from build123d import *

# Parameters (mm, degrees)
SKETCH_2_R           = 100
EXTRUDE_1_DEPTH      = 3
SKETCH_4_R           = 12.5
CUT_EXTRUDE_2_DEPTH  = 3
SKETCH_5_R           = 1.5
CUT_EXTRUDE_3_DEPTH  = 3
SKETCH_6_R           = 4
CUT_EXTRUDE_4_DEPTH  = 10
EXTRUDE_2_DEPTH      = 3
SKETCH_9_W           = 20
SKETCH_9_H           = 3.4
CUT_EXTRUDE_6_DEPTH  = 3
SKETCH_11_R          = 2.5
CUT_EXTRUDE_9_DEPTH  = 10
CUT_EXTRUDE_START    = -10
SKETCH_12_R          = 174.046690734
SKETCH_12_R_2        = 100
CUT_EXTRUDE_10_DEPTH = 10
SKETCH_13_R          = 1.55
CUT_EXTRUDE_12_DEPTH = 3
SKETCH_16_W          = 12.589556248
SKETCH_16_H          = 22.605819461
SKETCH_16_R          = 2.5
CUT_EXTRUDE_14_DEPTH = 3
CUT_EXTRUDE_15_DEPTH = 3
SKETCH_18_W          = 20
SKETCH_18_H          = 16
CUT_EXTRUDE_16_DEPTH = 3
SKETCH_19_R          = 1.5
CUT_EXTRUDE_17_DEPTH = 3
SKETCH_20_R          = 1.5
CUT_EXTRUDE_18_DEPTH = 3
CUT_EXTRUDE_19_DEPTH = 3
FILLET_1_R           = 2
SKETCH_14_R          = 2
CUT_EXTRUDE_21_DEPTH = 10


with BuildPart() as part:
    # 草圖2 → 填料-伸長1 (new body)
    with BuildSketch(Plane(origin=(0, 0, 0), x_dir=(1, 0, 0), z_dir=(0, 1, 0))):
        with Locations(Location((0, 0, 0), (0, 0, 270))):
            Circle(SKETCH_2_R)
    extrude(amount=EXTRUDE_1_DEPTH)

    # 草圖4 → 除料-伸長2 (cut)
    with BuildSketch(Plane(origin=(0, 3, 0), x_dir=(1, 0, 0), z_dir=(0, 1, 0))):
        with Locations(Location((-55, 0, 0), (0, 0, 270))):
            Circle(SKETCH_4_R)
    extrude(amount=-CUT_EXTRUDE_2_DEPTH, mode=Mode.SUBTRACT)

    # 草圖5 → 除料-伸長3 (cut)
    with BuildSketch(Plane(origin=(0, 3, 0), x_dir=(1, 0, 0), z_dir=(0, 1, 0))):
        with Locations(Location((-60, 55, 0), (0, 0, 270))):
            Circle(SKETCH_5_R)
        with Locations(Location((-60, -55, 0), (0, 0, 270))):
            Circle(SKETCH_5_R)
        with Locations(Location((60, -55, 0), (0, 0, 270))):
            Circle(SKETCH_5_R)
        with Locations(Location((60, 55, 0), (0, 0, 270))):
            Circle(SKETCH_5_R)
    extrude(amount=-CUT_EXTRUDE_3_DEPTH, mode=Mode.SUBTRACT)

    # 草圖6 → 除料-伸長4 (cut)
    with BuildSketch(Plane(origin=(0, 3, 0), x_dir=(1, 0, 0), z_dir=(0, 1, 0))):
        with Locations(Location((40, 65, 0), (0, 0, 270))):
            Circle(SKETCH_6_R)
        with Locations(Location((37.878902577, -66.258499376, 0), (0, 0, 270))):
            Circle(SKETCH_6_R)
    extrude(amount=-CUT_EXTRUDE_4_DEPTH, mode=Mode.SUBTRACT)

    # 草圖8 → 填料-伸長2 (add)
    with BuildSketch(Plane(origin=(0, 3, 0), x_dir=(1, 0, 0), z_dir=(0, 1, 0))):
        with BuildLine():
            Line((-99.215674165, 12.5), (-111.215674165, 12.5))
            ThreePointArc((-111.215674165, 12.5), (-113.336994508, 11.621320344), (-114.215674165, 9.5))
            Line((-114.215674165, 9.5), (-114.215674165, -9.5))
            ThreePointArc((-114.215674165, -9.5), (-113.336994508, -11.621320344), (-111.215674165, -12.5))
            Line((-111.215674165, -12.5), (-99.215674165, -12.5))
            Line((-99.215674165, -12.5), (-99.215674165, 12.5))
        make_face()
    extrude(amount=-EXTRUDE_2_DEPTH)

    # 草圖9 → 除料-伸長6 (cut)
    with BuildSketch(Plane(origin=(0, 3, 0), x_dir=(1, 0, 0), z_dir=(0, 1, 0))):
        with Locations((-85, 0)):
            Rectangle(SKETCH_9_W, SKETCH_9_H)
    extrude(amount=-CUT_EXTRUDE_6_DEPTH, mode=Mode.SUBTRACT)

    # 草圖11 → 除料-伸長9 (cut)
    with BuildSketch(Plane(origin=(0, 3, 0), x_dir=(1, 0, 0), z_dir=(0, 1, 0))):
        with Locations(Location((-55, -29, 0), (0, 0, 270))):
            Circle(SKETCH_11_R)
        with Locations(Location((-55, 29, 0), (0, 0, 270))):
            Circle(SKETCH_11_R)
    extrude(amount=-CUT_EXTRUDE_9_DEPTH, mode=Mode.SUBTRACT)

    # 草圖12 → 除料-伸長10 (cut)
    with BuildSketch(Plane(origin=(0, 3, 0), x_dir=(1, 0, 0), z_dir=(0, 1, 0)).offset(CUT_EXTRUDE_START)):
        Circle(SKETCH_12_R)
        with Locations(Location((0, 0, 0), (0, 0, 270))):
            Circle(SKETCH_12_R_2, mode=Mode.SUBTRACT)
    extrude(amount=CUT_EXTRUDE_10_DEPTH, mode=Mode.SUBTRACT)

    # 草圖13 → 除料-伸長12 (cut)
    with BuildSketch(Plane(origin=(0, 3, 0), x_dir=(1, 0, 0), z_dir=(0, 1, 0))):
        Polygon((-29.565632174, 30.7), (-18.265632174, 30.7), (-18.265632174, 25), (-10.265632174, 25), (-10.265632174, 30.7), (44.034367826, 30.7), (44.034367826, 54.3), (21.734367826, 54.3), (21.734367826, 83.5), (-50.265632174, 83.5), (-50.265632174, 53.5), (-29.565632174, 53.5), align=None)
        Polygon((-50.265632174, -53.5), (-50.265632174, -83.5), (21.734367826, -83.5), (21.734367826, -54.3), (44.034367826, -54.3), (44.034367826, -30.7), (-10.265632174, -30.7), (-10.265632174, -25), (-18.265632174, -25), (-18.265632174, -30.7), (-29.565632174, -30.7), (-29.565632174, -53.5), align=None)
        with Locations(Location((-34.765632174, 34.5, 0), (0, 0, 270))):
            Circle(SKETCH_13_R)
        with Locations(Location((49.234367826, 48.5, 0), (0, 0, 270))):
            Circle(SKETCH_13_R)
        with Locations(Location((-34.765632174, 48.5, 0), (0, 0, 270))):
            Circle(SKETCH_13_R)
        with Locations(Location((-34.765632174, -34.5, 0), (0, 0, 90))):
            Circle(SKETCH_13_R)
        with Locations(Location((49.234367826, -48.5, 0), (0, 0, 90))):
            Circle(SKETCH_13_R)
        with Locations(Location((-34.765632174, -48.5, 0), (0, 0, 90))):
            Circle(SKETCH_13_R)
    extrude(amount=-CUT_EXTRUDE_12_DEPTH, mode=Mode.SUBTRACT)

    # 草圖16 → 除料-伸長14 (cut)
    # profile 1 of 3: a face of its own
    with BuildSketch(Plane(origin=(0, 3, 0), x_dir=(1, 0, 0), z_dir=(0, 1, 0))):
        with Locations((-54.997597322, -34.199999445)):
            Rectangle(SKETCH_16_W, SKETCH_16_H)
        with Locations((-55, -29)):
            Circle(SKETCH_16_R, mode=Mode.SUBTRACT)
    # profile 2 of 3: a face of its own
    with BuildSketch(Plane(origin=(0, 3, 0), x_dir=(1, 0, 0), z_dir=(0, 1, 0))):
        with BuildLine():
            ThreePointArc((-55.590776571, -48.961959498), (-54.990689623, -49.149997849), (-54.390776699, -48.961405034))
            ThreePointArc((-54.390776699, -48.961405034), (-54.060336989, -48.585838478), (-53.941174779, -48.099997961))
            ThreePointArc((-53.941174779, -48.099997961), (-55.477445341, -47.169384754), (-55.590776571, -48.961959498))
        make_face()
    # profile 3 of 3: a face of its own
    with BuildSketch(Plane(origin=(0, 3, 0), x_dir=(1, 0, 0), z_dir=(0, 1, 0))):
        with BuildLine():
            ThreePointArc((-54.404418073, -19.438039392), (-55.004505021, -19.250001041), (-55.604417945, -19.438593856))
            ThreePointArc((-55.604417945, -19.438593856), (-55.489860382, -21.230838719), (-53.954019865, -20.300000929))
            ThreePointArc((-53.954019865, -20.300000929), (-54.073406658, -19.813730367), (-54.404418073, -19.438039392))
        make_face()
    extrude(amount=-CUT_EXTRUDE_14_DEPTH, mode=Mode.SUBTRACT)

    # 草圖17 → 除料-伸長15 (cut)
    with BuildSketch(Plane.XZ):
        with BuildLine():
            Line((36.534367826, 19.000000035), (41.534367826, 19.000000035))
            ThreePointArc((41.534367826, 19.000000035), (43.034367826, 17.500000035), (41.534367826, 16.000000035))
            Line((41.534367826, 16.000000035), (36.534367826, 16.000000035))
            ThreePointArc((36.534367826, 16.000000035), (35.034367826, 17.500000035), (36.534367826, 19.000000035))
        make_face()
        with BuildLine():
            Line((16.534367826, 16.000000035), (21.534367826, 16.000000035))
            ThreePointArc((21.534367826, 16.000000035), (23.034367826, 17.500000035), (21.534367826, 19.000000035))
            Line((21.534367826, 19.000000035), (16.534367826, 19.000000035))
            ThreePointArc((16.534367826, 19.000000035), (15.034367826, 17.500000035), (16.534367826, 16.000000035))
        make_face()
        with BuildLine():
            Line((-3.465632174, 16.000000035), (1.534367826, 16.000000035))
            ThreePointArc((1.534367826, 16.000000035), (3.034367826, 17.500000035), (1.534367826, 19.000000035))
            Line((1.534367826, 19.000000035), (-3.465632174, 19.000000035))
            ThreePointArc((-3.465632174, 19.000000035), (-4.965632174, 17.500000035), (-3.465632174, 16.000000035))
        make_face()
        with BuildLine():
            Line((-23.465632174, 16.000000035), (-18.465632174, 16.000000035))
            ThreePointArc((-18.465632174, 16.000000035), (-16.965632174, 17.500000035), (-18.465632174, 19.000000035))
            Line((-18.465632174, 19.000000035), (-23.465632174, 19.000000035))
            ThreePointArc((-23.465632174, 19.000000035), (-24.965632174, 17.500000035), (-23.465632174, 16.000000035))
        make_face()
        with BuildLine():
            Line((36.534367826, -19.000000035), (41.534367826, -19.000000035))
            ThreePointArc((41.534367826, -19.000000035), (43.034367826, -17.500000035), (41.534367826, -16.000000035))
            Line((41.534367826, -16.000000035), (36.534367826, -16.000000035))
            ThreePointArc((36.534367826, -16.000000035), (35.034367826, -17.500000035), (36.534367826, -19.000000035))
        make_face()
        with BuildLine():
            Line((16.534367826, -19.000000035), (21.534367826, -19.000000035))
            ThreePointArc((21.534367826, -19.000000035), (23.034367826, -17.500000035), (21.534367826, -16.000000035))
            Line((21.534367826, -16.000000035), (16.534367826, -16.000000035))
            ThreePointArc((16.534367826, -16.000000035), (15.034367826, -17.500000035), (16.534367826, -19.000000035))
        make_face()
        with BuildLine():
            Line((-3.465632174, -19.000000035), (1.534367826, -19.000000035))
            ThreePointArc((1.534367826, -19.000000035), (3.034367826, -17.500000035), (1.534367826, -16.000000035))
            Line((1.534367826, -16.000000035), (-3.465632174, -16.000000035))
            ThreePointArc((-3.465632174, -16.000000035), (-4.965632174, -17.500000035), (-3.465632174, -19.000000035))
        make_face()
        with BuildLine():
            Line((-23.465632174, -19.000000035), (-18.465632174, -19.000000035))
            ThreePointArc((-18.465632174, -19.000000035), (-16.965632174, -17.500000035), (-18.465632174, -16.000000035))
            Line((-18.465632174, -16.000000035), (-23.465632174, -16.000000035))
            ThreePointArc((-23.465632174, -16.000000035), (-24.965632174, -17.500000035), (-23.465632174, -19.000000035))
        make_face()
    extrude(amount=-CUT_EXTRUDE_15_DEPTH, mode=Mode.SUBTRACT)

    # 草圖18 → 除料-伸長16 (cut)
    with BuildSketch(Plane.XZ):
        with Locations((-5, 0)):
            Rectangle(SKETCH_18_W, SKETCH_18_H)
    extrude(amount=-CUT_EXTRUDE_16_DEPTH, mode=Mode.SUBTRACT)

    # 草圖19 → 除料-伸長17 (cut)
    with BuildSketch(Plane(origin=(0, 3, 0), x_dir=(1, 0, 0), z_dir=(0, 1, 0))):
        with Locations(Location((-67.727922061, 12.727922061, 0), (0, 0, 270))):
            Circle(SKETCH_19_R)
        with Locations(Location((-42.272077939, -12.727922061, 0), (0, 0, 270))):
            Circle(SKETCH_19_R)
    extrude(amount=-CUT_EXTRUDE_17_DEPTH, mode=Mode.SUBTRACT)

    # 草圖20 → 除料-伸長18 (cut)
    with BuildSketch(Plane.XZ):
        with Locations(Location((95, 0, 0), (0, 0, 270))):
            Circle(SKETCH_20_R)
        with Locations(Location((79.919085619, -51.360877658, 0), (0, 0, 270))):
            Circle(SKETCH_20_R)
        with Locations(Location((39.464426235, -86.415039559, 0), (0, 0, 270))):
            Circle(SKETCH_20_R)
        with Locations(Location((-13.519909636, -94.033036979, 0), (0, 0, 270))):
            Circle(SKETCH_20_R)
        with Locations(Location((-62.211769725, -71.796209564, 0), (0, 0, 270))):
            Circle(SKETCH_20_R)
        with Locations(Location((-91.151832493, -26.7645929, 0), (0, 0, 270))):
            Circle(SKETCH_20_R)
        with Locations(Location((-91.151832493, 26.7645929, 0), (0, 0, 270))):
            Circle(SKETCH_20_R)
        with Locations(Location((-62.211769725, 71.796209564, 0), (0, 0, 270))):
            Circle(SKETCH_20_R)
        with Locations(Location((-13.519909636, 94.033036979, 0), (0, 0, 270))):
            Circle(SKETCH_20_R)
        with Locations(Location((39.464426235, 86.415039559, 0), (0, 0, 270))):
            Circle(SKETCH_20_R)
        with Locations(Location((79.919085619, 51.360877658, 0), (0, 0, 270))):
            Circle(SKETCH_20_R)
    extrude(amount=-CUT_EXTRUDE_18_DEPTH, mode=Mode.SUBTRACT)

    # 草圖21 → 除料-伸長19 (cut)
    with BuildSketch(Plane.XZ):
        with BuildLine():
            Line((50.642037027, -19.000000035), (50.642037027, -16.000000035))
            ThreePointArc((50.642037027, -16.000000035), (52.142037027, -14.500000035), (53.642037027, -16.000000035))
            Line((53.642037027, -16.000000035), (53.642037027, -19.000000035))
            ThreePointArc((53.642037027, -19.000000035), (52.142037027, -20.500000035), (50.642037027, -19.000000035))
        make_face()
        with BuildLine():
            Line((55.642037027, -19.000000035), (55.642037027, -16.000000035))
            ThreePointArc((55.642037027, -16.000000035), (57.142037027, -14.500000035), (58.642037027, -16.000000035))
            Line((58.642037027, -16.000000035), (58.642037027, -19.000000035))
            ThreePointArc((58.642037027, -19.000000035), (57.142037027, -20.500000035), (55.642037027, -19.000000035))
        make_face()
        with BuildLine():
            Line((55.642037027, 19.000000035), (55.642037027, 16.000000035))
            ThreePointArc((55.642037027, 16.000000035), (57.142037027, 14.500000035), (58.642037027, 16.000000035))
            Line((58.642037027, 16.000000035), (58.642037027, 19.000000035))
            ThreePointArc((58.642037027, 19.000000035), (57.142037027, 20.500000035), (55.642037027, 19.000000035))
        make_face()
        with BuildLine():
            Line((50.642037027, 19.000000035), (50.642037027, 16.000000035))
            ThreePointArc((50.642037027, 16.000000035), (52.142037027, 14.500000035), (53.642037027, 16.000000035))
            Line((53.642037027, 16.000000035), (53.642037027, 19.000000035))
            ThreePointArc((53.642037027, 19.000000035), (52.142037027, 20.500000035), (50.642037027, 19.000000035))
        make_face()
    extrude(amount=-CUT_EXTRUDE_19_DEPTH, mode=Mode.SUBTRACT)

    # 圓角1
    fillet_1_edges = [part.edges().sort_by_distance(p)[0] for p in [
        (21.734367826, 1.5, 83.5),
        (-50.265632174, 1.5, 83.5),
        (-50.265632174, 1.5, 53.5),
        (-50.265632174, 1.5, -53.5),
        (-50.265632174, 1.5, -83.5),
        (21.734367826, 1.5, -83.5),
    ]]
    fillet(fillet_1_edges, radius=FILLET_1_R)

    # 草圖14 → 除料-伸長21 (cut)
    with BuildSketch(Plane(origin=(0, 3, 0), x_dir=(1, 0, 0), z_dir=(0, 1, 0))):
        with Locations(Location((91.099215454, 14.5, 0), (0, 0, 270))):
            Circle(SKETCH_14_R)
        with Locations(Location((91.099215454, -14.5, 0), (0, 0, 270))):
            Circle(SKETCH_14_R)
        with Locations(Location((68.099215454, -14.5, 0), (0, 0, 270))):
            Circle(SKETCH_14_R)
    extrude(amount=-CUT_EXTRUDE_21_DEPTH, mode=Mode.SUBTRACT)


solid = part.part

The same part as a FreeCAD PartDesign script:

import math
import FreeCAD as App
import Part
import Sketcher


def edges_at(feature, points):
    """Names of the edges that pass closest to the given points."""
    edges = feature.Shape.Edges
    near = lambda p: min(range(len(edges)), key=lambda i: edges[i].distToShape(Part.Vertex(*p))[0])
    return sorted({f"Edge{near(p) + 1}" for p in points})


def add_polygon(sketch, points):
    """Adds a closed chain of lines whose ends are joined by coincident constraints."""
    first, n = sketch.GeometryCount, len(points)
    for a, b in zip(points, points[1:] + points[:1]):
        sketch.addGeometry(Part.LineSegment(App.Vector(*a, 0), App.Vector(*b, 0)), False)
    for i in range(n):
        sketch.addConstraint(Sketcher.Constraint("Coincident", first + i, 2, first + (i + 1) % n, 1))

doc = App.newDocument("Part")
params = doc.addObject("Spreadsheet::Sheet", "Params")
for row, (alias, value) in enumerate([
    ("sketch1_diameter", "200 mm"),
    ("pad1_length", "3 mm"),
    ("sketch2_diameter", "25 mm"),
    ("pocket1_length", "3 mm"),
    ("sketch3_diameter", "3 mm"),
    ("pocket2_length", "3 mm"),
    ("sketch4_diameter", "8 mm"),
    ("pocket3_length", "10 mm"),
    ("sketch5_radius", "3 mm"),
    ("sketch5_width", "12 mm"),
    ("sketch5_height", "19 mm"),
    ("pad2_length", "3 mm"),
    ("sketch6_width", "20 mm"),
    ("sketch6_height", "3.4 mm"),
    ("pocket4_length", "3 mm"),
    ("sketch7_diameter", "5 mm"),
    ("pocket5_length", "10 mm"),
    ("sketch8_diameter", "200 mm"),
    ("pocket6_length", "10 mm"),
    ("sketch9_diameter", "3.1 mm"),
    ("sketch9_width", "8 mm"),
    ("sketch9_width2", "72 mm"),
    ("sketch9_height", "30 mm"),
    ("sketch9_width3", "11.3 mm"),
    ("pocket7_length", "3 mm"),
    ("sketch10_diameter", "5 mm"),
    ("sketch10_radius", "1.05 mm"),
    ("pocket8_length", "3 mm"),
    ("sketch11_radius", "1.5 mm"),
    ("sketch11_width", "5 mm"),
    ("pocket9_length", "3 mm"),
    ("sketch12_width", "20 mm"),
    ("sketch12_height", "16 mm"),
    ("pocket10_length", "3 mm"),
    ("sketch13_diameter", "3 mm"),
    ("pocket11_length", "3 mm"),
    ("sketch14_diameter", "3 mm"),
    ("pocket12_length", "3 mm"),
    ("sketch15_radius", "1.5 mm"),
    ("sketch15_height", "3 mm"),
    ("pocket13_length", "3 mm"),
    ("fillet_radius", "2 mm"),
    ("sketch16_diameter", "4 mm"),
    ("pocket14_length", "10 mm"),
], start=1):
    params.set(f"A{row}", alias)
    params.set(f"B{row}", "=" + value)
    params.setAlias(f"B{row}", alias)

body = doc.addObject("PartDesign::Body", "Body")

# Sketch on XZ plane
sketch1 = doc.addObject("Sketcher::SketchObject", "Sketch")
body.addObject(sketch1)
sketch1.AttachmentSupport = (doc.XZ_Plane, [""])
sketch1.MapMode = "FlatFace"
sketch1.addGeometry(Part.Circle(App.Vector(0, 0, 0), App.Vector(0, 0, 1), 100), False)
sketch1.addConstraint([
    Sketcher.Constraint("Coincident", 0, 3, -1, 1),
    Sketcher.Constraint("Diameter", 0, 200.0),
])
sketch1.setExpression("Constraints[1]", "Params.sketch1_diameter")
pad1 = doc.addObject("PartDesign::Pad", "Pad")
body.addObject(pad1)
pad1.Profile = sketch1
pad1.setExpression("Length", "Params.pad1_length")
pad1.Reversed = True

# Sketch on XZ plane
sketch2 = doc.addObject("Sketcher::SketchObject", "Sketch001")
body.addObject(sketch2)
sketch2.AttachmentSupport = (doc.XZ_Plane, [""])
sketch2.MapMode = "FlatFace"
sketch2.AttachmentOffset = App.Placement(App.Vector(0, 0, -3), App.Rotation())
sketch2.addGeometry(Part.Circle(App.Vector(-55, 0, 0), App.Vector(0, 0, 1), 12), False)
sketch2.addConstraint([
    Sketcher.Constraint("PointOnObject", 0, 3, -1),
    Sketcher.Constraint("Diameter", 0, 25.0),
    Sketcher.Constraint("DistanceX", 0, 3, -1, 1, 55.0),
])
sketch2.setExpression("Constraints[1]", "Params.sketch2_diameter")
pocket1 = doc.addObject("PartDesign::Pocket", "Pocket")
body.addObject(pocket1)
pocket1.Profile = sketch2
pocket1.setExpression("Length", "Params.pocket1_length")
pocket1.Reversed = True

# Sketch on XZ plane
sketch3 = doc.addObject("Sketcher::SketchObject", "Sketch002")
body.addObject(sketch3)
sketch3.AttachmentSupport = (doc.XZ_Plane, [""])
sketch3.MapMode = "FlatFace"
sketch3.AttachmentOffset = App.Placement(App.Vector(0, 0, -3), App.Rotation())
sketch3.addGeometry([
    Part.Circle(App.Vector(-60, -55, 0), App.Vector(0, 0, 1), 1.5),
    Part.Circle(App.Vector(-60, 55, 0), App.Vector(0, 0, 1), 1.5),
    Part.Circle(App.Vector(60, 55, 0), App.Vector(0, 0, 1), 1.5),
    Part.Circle(App.Vector(60, -55, 0), App.Vector(0, 0, 1), 1.5),
], False)
sketch3.addConstraint([
    Sketcher.Constraint("Equal", 0, 1),
    Sketcher.Constraint("Equal", 1, 2),
    Sketcher.Constraint("Equal", 2, 3),
    Sketcher.Constraint("Symmetric", 0, 3, 2, 3, -1, 1),
    Sketcher.Constraint("Symmetric", 1, 3, 3, 3, -1, 1),
    Sketcher.Constraint("Symmetric", 1, 3, 2, 3, -2),
    Sketcher.Constraint("Diameter", 0, 3.0),
    Sketcher.Constraint("DistanceX", 0, 3, -1, 1, 60.0),
    Sketcher.Constraint("DistanceY", 0, 3, -1, 1, 55.0),
])
sketch3.setExpression("Constraints[6]", "Params.sketch3_diameter")
pocket2 = doc.addObject("PartDesign::Pocket", "Pocket001")
body.addObject(pocket2)
pocket2.Profile = sketch3
pocket2.setExpression("Length", "Params.pocket2_length")
pocket2.Reversed = True

# Sketch on XZ plane
sketch4 = doc.addObject("Sketcher::SketchObject", "Sketch003")
body.addObject(sketch4)
sketch4.AttachmentSupport = (doc.XZ_Plane, [""])
sketch4.MapMode = "FlatFace"
sketch4.AttachmentOffset = App.Placement(App.Vector(0, 0, -3), App.Rotation())
sketch4.addGeometry([
    Part.Circle(App.Vector(40, -65, 0), App.Vector(0, 0, 1), 4),
    Part.Circle(App.Vector(37.9, 66.3, 0), App.Vector(0, 0, 1), 4),
], False)
sketch4.addConstraint([
    Sketcher.Constraint("Equal", 0, 1),
    Sketcher.Constraint("Diameter", 0, 8.0),
    Sketcher.Constraint("DistanceX", -1, 1, 0, 3, 40.0),
    Sketcher.Constraint("DistanceY", 0, 3, -1, 1, 65.0),
    Sketcher.Constraint("DistanceY", -1, 1, 1, 3, 66.258499),
    Sketcher.Constraint("DistanceX", -1, 1, 1, 3, 37.878903),
])
sketch4.setExpression("Constraints[1]", "Params.sketch4_diameter")
pocket3 = doc.addObject("PartDesign::Pocket", "Pocket002")
body.addObject(pocket3)
pocket3.Profile = sketch4
pocket3.setExpression("Length", "Params.pocket3_length")
pocket3.Reversed = True

# Sketch on XZ plane
sketch5 = doc.addObject("Sketcher::SketchObject", "Sketch004")
body.addObject(sketch5)
sketch5.AttachmentSupport = (doc.XZ_Plane, [""])
sketch5.MapMode = "FlatFace"
sketch5.AttachmentOffset = App.Placement(App.Vector(0, 0, -3), App.Rotation())
sketch5.addGeometry([
    Part.LineSegment(App.Vector(-99.2, -12.5, 0), App.Vector(-111.2, -12.5, 0)),  # 0
    Part.ArcOfCircle(Part.Circle(App.Vector(-111.2, -9.5, 0), App.Vector(0, 0, 1), 3), math.radians(180), math.radians(270)),  # 1
    Part.LineSegment(App.Vector(-114.2, -9.5, 0), App.Vector(-114.2, 9.5, 0)),  # 2
    Part.ArcOfCircle(Part.Circle(App.Vector(-111.2, 9.5, 0), App.Vector(0, 0, 1), 3), math.radians(90), math.radians(180)),  # 3
    Part.LineSegment(App.Vector(-111.2, 12.5, 0), App.Vector(-99.2, 12.5, 0)),  # 4
    Part.LineSegment(App.Vector(-99.2, 12.5, 0), App.Vector(-99.2, -12.5, 0)),  # 5
], False)
sketch5.addConstraint([
    Sketcher.Constraint("Tangent", 0, 2, 1, 2),
    Sketcher.Constraint("Tangent", 1, 1, 2, 1),
    Sketcher.Constraint("Tangent", 2, 2, 3, 2),
    Sketcher.Constraint("Tangent", 3, 1, 4, 1),
    Sketcher.Constraint("Coincident", 4, 2, 5, 1),
    Sketcher.Constraint("Coincident", 5, 2, 0, 1),
    Sketcher.Constraint("Horizontal", 0),
    Sketcher.Constraint("Vertical", 2),
    Sketcher.Constraint("Horizontal", 4),
    Sketcher.Constraint("Vertical", 5),
    Sketcher.Constraint("Equal", 1, 3),
    Sketcher.Constraint("Radius", 1, 3.0),
    Sketcher.Constraint("DistanceX", 0, 2, 0, 1, 12.0),
    Sketcher.Constraint("DistanceY", 2, 1, 2, 2, 19.0),
    Sketcher.Constraint("DistanceY", 1, 3, -1, 1, 9.5),
    Sketcher.Constraint("DistanceX", 1, 3, -1, 1, 111.215674),
])
sketch5.setExpression("Constraints[11]", "Params.sketch5_radius")
sketch5.setExpression("Constraints[12]", "Params.sketch5_width")
sketch5.setExpression("Constraints[13]", "Params.sketch5_height")
pad2 = doc.addObject("PartDesign::Pad", "Pad001")
body.addObject(pad2)
pad2.Profile = sketch5
pad2.setExpression("Length", "Params.pad2_length")

# Sketch on XZ plane
sketch6 = doc.addObject("Sketcher::SketchObject", "Sketch005")
body.addObject(sketch6)
sketch6.AttachmentSupport = (doc.XZ_Plane, [""])
sketch6.MapMode = "FlatFace"
sketch6.AttachmentOffset = App.Placement(App.Vector(0, 0, -3), App.Rotation())
add_polygon(sketch6, [(-95, -1.7), (-95, 1.7), (-75, 1.7), (-75, -1.7)])  # lines 0-3
sketch6.addConstraint([
    Sketcher.Constraint("Vertical", 0),
    Sketcher.Constraint("Horizontal", 1),
    Sketcher.Constraint("Vertical", 2),
    Sketcher.Constraint("Horizontal", 3),
    Sketcher.Constraint("DistanceX", 1, 1, 1, 2, 20.0),
    Sketcher.Constraint("DistanceY", 0, 1, 0, 2, 3.4),
    Sketcher.Constraint("DistanceX", 0, 2, -1, 1, 95.0),
    Sketcher.Constraint("DistanceY", -1, 1, 0, 2, 1.7),
])
sketch6.setExpression("Constraints[8]", "Params.sketch6_width")
sketch6.setExpression("Constraints[9]", "Params.sketch6_height")
pocket4 = doc.addObject("PartDesign::Pocket", "Pocket003")
body.addObject(pocket4)
pocket4.Profile = sketch6
pocket4.setExpression("Length", "Params.pocket4_length")
pocket4.Reversed = True

# Sketch on XZ plane
sketch7 = doc.addObject("Sketcher::SketchObject", "Sketch006")
body.addObject(sketch7)
sketch7.AttachmentSupport = (doc.XZ_Plane, [""])
sketch7.MapMode = "FlatFace"
sketch7.AttachmentOffset = App.Placement(App.Vector(0, 0, -3), App.Rotation())
sketch7.addGeometry([
    Part.Circle(App.Vector(-55, 29, 0), App.Vector(0, 0, 1), 2.5),
    Part.Circle(App.Vector(-55, -29, 0), App.Vector(0, 0, 1), 2.5),
], False)
sketch7.addConstraint([
    Sketcher.Constraint("Equal", 0, 1),
    Sketcher.Constraint("Symmetric", 0, 3, 1, 3, -1),
    Sketcher.Constraint("Diameter", 0, 5.0),
    Sketcher.Constraint("DistanceX", 0, 3, -1, 1, 55.0),
    Sketcher.Constraint("DistanceY", -1, 1, 0, 3, 29.0),
])
sketch7.setExpression("Constraints[2]", "Params.sketch7_diameter")
pocket5 = doc.addObject("PartDesign::Pocket", "Pocket004")
body.addObject(pocket5)
pocket5.Profile = sketch7
pocket5.setExpression("Length", "Params.pocket5_length")
pocket5.Reversed = True

# Sketch on XZ plane
sketch8 = doc.addObject("Sketcher::SketchObject", "Sketch007")
body.addObject(sketch8)
sketch8.AttachmentSupport = (doc.XZ_Plane, [""])
sketch8.MapMode = "FlatFace"
sketch8.AttachmentOffset = App.Placement(App.Vector(0, 0, 7), App.Rotation())
sketch8.addGeometry([
    Part.Circle(App.Vector(0, 0, 0), App.Vector(0, 0, 1), 174),
    Part.Circle(App.Vector(0, 0, 0), App.Vector(0, 0, 1), 100),
], False)
sketch8.addConstraint([
    Sketcher.Constraint("Coincident", 0, 3, -1, 1),
    Sketcher.Constraint("Coincident", 1, 3, -1, 1),
    Sketcher.Constraint("Diameter", 1, 200.0),
    Sketcher.Constraint("Diameter", 0, 348.093381),
])
sketch8.setExpression("Constraints[2]", "Params.sketch8_diameter")
pocket6 = doc.addObject("PartDesign::Pocket", "Pocket005")
body.addObject(pocket6)
pocket6.Profile = sketch8
pocket6.setExpression("Length", "Params.pocket6_length")

# Sketch on XZ plane
sketch9 = doc.addObject("Sketcher::SketchObject", "Sketch008")
body.addObject(sketch9)
sketch9.AttachmentSupport = (doc.XZ_Plane, [""])
sketch9.MapMode = "FlatFace"
sketch9.AttachmentOffset = App.Placement(App.Vector(0, 0, -3), App.Rotation())
add_polygon(sketch9, [(-29.6, -30.7), (-18.3, -30.7), (-18.3, -25), (-10.3, -25), (-10.3, -30.7), (44, -30.7), (44, -54.3), (21.7, -54.3), (21.7, -83.5), (-50.3, -83.5), (-50.3, -53.5), (-29.6, -53.5)])  # lines 0-11
add_polygon(sketch9, [(-50.3, 53.5), (-50.3, 83.5), (21.7, 83.5), (21.7, 54.3), (44, 54.3), (44, 30.7), (-10.3, 30.7), (-10.3, 25), (-18.3, 25), (-18.3, 30.7), (-29.6, 30.7), (-29.6, 53.5)])  # lines 12-23
sketch9.addGeometry(Part.Circle(App.Vector(-34.8, -34.5, 0), App.Vector(0, 0, 1), 1.6), False)  # 24
sketch9.addGeometry(Part.Circle(App.Vector(49.2, -48.5, 0), App.Vector(0, 0, 1), 1.6), False)  # 25
sketch9.addGeometry(Part.Circle(App.Vector(-34.8, -48.5, 0), App.Vector(0, 0, 1), 1.6), False)  # 26
sketch9.addGeometry(Part.Circle(App.Vector(-34.8, 34.5, 0), App.Vector(0, 0, 1), 1.6), False)  # 27
sketch9.addGeometry(Part.Circle(App.Vector(49.2, 48.5, 0), App.Vector(0, 0, 1), 1.6), False)  # 28
sketch9.addGeometry(Part.Circle(App.Vector(-34.8, 48.5, 0), App.Vector(0, 0, 1), 1.6), False)  # 29
sketch9.addConstraint([
    Sketcher.Constraint("Horizontal", 0),
    Sketcher.Constraint("Vertical", 1),
    Sketcher.Constraint("Horizontal", 2),
    Sketcher.Constraint("Vertical", 3),
    Sketcher.Constraint("Horizontal", 4),
    Sketcher.Constraint("Vertical", 5),
    Sketcher.Constraint("Horizontal", 6),
    Sketcher.Constraint("Vertical", 7),
    Sketcher.Constraint("Horizontal", 8),
    Sketcher.Constraint("Vertical", 9),
    Sketcher.Constraint("Horizontal", 10),
    Sketcher.Constraint("Vertical", 11),
    Sketcher.Constraint("Vertical", 12),
    Sketcher.Constraint("Horizontal", 13),
    Sketcher.Constraint("Vertical", 14),
    Sketcher.Constraint("Horizontal", 15),
    Sketcher.Constraint("Vertical", 16),
    Sketcher.Constraint("Horizontal", 17),
    Sketcher.Constraint("Vertical", 18),
    Sketcher.Constraint("Horizontal", 19),
    Sketcher.Constraint("Vertical", 20),
    Sketcher.Constraint("Horizontal", 21),
    Sketcher.Constraint("Vertical", 22),
    Sketcher.Constraint("Horizontal", 23),
    Sketcher.Constraint("Equal", 24, 25),
    Sketcher.Constraint("Equal", 25, 26),
    Sketcher.Constraint("Equal", 26, 27),
    Sketcher.Constraint("Equal", 27, 28),
    Sketcher.Constraint("Equal", 28, 29),
    Sketcher.Constraint("Symmetric", 24, 3, 27, 3, -1),
    Sketcher.Constraint("Symmetric", 25, 3, 28, 3, -1),
    Sketcher.Constraint("Symmetric", 26, 3, 29, 3, -1),
    Sketcher.Constraint("Symmetric", 8, 2, 12, 2, -1),
    Sketcher.Constraint("Symmetric", 6, 2, 14, 2, -1),
    Sketcher.Constraint("Symmetric", 4, 2, 16, 2, -1),
    Sketcher.Constraint("Symmetric", 2, 2, 18, 2, -1),
    Sketcher.Constraint("Symmetric", 0, 2, 20, 2, -1),
    Sketcher.Constraint("Symmetric", 10, 2, 22, 2, -1),
    Sketcher.Constraint("Horizontal", 25, 3, 26, 3),
    Sketcher.Constraint("Horizontal", 0, 2, 3, 2),
    Sketcher.Constraint("Vertical", 24, 3, 26, 3),
    Sketcher.Constraint("Diameter", 24, 3.1),
    Sketcher.Constraint("DistanceX", 2, 1, 2, 2, 8.0),
    Sketcher.Constraint("DistanceX", 8, 2, 8, 1, 72.0),
    Sketcher.Constraint("DistanceY", 9, 1, 9, 2, 30.0),
    Sketcher.Constraint("DistanceX", 0, 1, 0, 2, 11.3),
    Sketcher.Constraint("DistanceX", 4, 1, 4, 2, 54.3),
    Sketcher.Constraint("DistanceX", 6, 2, 6, 1, 22.3),
    Sketcher.Constraint("DistanceY", 1, 1, 1, 2, 5.7),
    Sketcher.Constraint("DistanceY", 5, 2, 5, 1, 23.6),
    Sketcher.Constraint("DistanceY", 7, 2, 7, 1, 29.2),
    Sketcher.Constraint("DistanceY", 1, 2, -1, 1, 25.0),
    Sketcher.Constraint("DistanceX", 24, 3, 25, 3, 84.0),
    Sketcher.Constraint("DistanceY", 25, 3, 24, 3, 14.0),
    Sketcher.Constraint("DistanceY", 24, 3, 27, 3, 69.0),
    Sketcher.Constraint("DistanceX", 24, 3, 0, 2, 16.5),
    Sketcher.Constraint("DistanceX", 24, 3, -1, 1, 34.765632),
])
sketch9.setExpression("Constraints[65]", "Params.sketch9_diameter")
sketch9.setExpression("Constraints[66]", "Params.sketch9_width")
sketch9.setExpression("Constraints[67]", "Params.sketch9_width2")
sketch9.setExpression("Constraints[68]", "Params.sketch9_height")
sketch9.setExpression("Constraints[69]", "Params.sketch9_width3")
pocket7 = doc.addObject("PartDesign::Pocket", "Pocket006")
body.addObject(pocket7)
pocket7.Profile = sketch9
pocket7.setExpression("Length", "Params.pocket7_length")
pocket7.Reversed = True

# Sketch on XZ plane
sketch10 = doc.addObject("Sketcher::SketchObject", "Sketch009")
body.addObject(sketch10)
sketch10.AttachmentSupport = (doc.XZ_Plane, [""])
sketch10.MapMode = "FlatFace"
sketch10.AttachmentOffset = App.Placement(App.Vector(0, 0, -3), App.Rotation())
add_polygon(sketch10, [(-61.3, 22.9), (-61.3, 45.5), (-48.7, 45.5), (-48.7, 22.9)])  # lines 0-3
sketch10.addGeometry(Part.Circle(App.Vector(-55, 29, 0), App.Vector(0, 0, 1), 2.5), False)  # 4
sketch10.addGeometry(Part.ArcOfCircle(Part.Circle(App.Vector(-55, 48.1, 0), App.Vector(0, 0, 1), 1.1), math.radians(55), math.radians(125)), False)  # 5
sketch10.addGeometry(Part.ArcOfCircle(Part.Circle(App.Vector(-55, 48.1, 0), App.Vector(0, 0, 1), 1.1), math.radians(0), math.radians(55)), False)  # 6
sketch10.addGeometry(Part.ArcOfCircle(Part.Circle(App.Vector(-55, 48.1, 0), App.Vector(0, 0, 1), 1.1), math.radians(125), math.radians(360)), False)  # 7
sketch10.addGeometry(Part.ArcOfCircle(Part.Circle(App.Vector(-55, 20.3, 0), App.Vector(0, 0, 1), 1.1), math.radians(-125), math.radians(-55)), False)  # 8
sketch10.addGeometry(Part.ArcOfCircle(Part.Circle(App.Vector(-55, 20.3, 0), App.Vector(0, 0, 1), 1.1), math.radians(0), math.radians(235)), False)  # 9
sketch10.addGeometry(Part.ArcOfCircle(Part.Circle(App.Vector(-55, 20.3, 0), App.Vector(0, 0, 1), 1), math.radians(-55), math.radians(0)), False)  # 10
sketch10.addConstraint([
    Sketcher.Constraint("Tangent", 5, 1, 6, 2),
    Sketcher.Constraint("Tangent", 6, 1, 7, 2),
    Sketcher.Constraint("Tangent", 7, 1, 5, 2),
    Sketcher.Constraint("Tangent", 8, 1, 9, 2),
    Sketcher.Constraint("Tangent", 9, 1, 10, 2),
    Sketcher.Constraint("Tangent", 10, 1, 8, 2),
    Sketcher.Constraint("Vertical", 0),
    Sketcher.Constraint("Horizontal", 1),
    Sketcher.Constraint("Vertical", 2),
    Sketcher.Constraint("Horizontal", 3),
    Sketcher.Constraint("Equal", 7, 8),
    Sketcher.Constraint("Horizontal", 7, 3, 6, 1),
    Sketcher.Constraint("Horizontal", 10, 3, 9, 1),
    Sketcher.Constraint("Diameter", 4, 5.0),
    Sketcher.Constraint("Radius", 5, 1.05),
    Sketcher.Constraint("DistanceX", 4, 3, -1, 1, 55.0),
    Sketcher.Constraint("DistanceY", -1, 1, 4, 3, 29.0),
    Sketcher.Constraint("DistanceY", -1, 1, 8, 3, 20.300001),
    Sketcher.Constraint("DistanceX", 7, 1, 5, 1, 1.2),
    Sketcher.Constraint("DistanceX", 8, 1, 10, 1, 1.2),
    Sketcher.Constraint("DistanceY", 0, 1, 0, 2, 22.605819),
    Sketcher.Constraint("DistanceX", 0, 2, 6, 3, 6.301201),
    Sketcher.Constraint("DistanceX", 10, 3, 2, 2, 6.301201),
    Sketcher.Constraint("DistanceX", 5, 3, 5, 1, 0.600398),
    Sketcher.Constraint("DistanceX", 8, 1, 10, 3, 0.600398),
    Sketcher.Constraint("DistanceX", 1, 1, 1, 2, 12.589556),
    Sketcher.Constraint("DistanceX", 8, 3, -1, 1, 55.00402),
    Sketcher.Constraint("DistanceY", -1, 1, 0, 2, 45.502909),
    Sketcher.Constraint("DistanceY", -1, 1, 7, 1, 48.961959),
])
sketch10.setExpression("Constraints[17]", "Params.sketch10_diameter")
sketch10.setExpression("Constraints[18]", "Params.sketch10_radius")
pocket8 = doc.addObject("PartDesign::Pocket", "Pocket007")
body.addObject(pocket8)
pocket8.Profile = sketch10
pocket8.setExpression("Length", "Params.pocket8_length")
pocket8.Reversed = True

# Sketch on XZ plane
sketch11 = doc.addObject("Sketcher::SketchObject", "Sketch010")
body.addObject(sketch11)
sketch11.AttachmentSupport = (doc.XZ_Plane, [""])
sketch11.MapMode = "FlatFace"
sketch11.addGeometry([
    Part.LineSegment(App.Vector(41.5, 19, 0), App.Vector(36.5, 19, 0)),  # 0
    Part.ArcOfCircle(Part.Circle(App.Vector(36.5, 17.5, 0), App.Vector(0, 0, 1), 1.5), math.radians(90), math.radians(270)),  # 1
    Part.LineSegment(App.Vector(36.5, 16, 0), App.Vector(41.5, 16, 0)),  # 2
    Part.ArcOfCircle(Part.Circle(App.Vector(41.5, 17.5, 0), App.Vector(0, 0, 1), 1.5), math.radians(-90), math.radians(90)),  # 3
    Part.LineSegment(App.Vector(16.5, 16, 0), App.Vector(21.5, 16, 0)),  # 4
    Part.ArcOfCircle(Part.Circle(App.Vector(21.5, 17.5, 0), App.Vector(0, 0, 1), 1.5), math.radians(-90), math.radians(90)),  # 5
    Part.LineSegment(App.Vector(21.5, 19, 0), App.Vector(16.5, 19, 0)),  # 6
    Part.ArcOfCircle(Part.Circle(App.Vector(16.5, 17.5, 0), App.Vector(0, 0, 1), 1.5), math.radians(90), math.radians(270)),  # 7
    Part.LineSegment(App.Vector(-3.5, 16, 0), App.Vector(1.5, 16, 0)),  # 8
    Part.ArcOfCircle(Part.Circle(App.Vector(1.5, 17.5, 0), App.Vector(0, 0, 1), 1.5), math.radians(-90), math.radians(90)),  # 9
    Part.LineSegment(App.Vector(1.5, 19, 0), App.Vector(-3.5, 19, 0)),  # 10
    Part.ArcOfCircle(Part.Circle(App.Vector(-3.5, 17.5, 0), App.Vector(0, 0, 1), 1.5), math.radians(90), math.radians(270)),  # 11
    Part.LineSegment(App.Vector(-23.5, 16, 0), App.Vector(-18.5, 16, 0)),  # 12
    Part.ArcOfCircle(Part.Circle(App.Vector(-18.5, 17.5, 0), App.Vector(0, 0, 1), 1.5), math.radians(-90), math.radians(90)),  # 13
    Part.LineSegment(App.Vector(-18.5, 19, 0), App.Vector(-23.5, 19, 0)),  # 14
    Part.ArcOfCircle(Part.Circle(App.Vector(-23.5, 17.5, 0), App.Vector(0, 0, 1), 1.5), math.radians(90), math.radians(270)),  # 15
    Part.LineSegment(App.Vector(36.5, -19, 0), App.Vector(41.5, -19, 0)),  # 16
    Part.ArcOfCircle(Part.Circle(App.Vector(41.5, -17.5, 0), App.Vector(0, 0, 1), 1.5), math.radians(-90), math.radians(90)),  # 17
    Part.LineSegment(App.Vector(41.5, -16, 0), App.Vector(36.5, -16, 0)),  # 18
    Part.ArcOfCircle(Part.Circle(App.Vector(36.5, -17.5, 0), App.Vector(0, 0, 1), 1.5), math.radians(90), math.radians(270)),  # 19
    Part.LineSegment(App.Vector(16.5, -19, 0), App.Vector(21.5, -19, 0)),  # 20
    Part.ArcOfCircle(Part.Circle(App.Vector(21.5, -17.5, 0), App.Vector(0, 0, 1), 1.5), math.radians(-90), math.radians(90)),  # 21
    Part.LineSegment(App.Vector(21.5, -16, 0), App.Vector(16.5, -16, 0)),  # 22
    Part.ArcOfCircle(Part.Circle(App.Vector(16.5, -17.5, 0), App.Vector(0, 0, 1), 1.5), math.radians(90), math.radians(270)),  # 23
    Part.LineSegment(App.Vector(-3.5, -19, 0), App.Vector(1.5, -19, 0)),  # 24
    Part.ArcOfCircle(Part.Circle(App.Vector(1.5, -17.5, 0), App.Vector(0, 0, 1), 1.5), math.radians(-90), math.radians(90)),  # 25
    Part.LineSegment(App.Vector(1.5, -16, 0), App.Vector(-3.5, -16, 0)),  # 26
    Part.ArcOfCircle(Part.Circle(App.Vector(-3.5, -17.5, 0), App.Vector(0, 0, 1), 1.5), math.radians(90), math.radians(270)),  # 27
    Part.LineSegment(App.Vector(-23.5, -19, 0), App.Vector(-18.5, -19, 0)),  # 28
    Part.ArcOfCircle(Part.Circle(App.Vector(-18.5, -17.5, 0), App.Vector(0, 0, 1), 1.5), math.radians(-90), math.radians(90)),  # 29
    Part.LineSegment(App.Vector(-18.5, -16, 0), App.Vector(-23.5, -16, 0)),  # 30
    Part.ArcOfCircle(Part.Circle(App.Vector(-23.5, -17.5, 0), App.Vector(0, 0, 1), 1.5), math.radians(90), math.radians(270)),  # 31
], False)
sketch11.addConstraint([
    Sketcher.Constraint("Tangent", 0, 2, 1, 1),
    Sketcher.Constraint("Tangent", 1, 2, 2, 1),
    Sketcher.Constraint("Tangent", 2, 2, 3, 1),
    Sketcher.Constraint("Tangent", 3, 2, 0, 1),
    Sketcher.Constraint("Tangent", 4, 2, 5, 1),
    Sketcher.Constraint("Tangent", 5, 2, 6, 1),
    Sketcher.Constraint("Tangent", 6, 2, 7, 1),
    Sketcher.Constraint("Tangent", 7, 2, 4, 1),
    Sketcher.Constraint("Tangent", 8, 2, 9, 1),
    Sketcher.Constraint("Tangent", 9, 2, 10, 1),
    Sketcher.Constraint("Tangent", 10, 2, 11, 1),
    Sketcher.Constraint("Tangent", 11, 2, 8, 1),
    Sketcher.Constraint("Tangent", 12, 2, 13, 1),
    Sketcher.Constraint("Tangent", 13, 2, 14, 1),
    Sketcher.Constraint("Tangent", 14, 2, 15, 1),
    Sketcher.Constraint("Tangent", 15, 2, 12, 1),
    Sketcher.Constraint("Tangent", 16, 2, 17, 1),
    Sketcher.Constraint("Tangent", 17, 2, 18, 1),
    Sketcher.Constraint("Tangent", 18, 2, 19, 1),
    Sketcher.Constraint("Tangent", 19, 2, 16, 1),
    Sketcher.Constraint("Tangent", 20, 2, 21, 1),
    Sketcher.Constraint("Tangent", 21, 2, 22, 1),
    Sketcher.Constraint("Tangent", 22, 2, 23, 1),
    Sketcher.Constraint("Tangent", 23, 2, 20, 1),
    Sketcher.Constraint("Tangent", 24, 2, 25, 1),
    Sketcher.Constraint("Tangent", 25, 2, 26, 1),
    Sketcher.Constraint("Tangent", 26, 2, 27, 1),
    Sketcher.Constraint("Tangent", 27, 2, 24, 1),
    Sketcher.Constraint("Tangent", 28, 2, 29, 1),
    Sketcher.Constraint("Tangent", 29, 2, 30, 1),
    Sketcher.Constraint("Tangent", 30, 2, 31, 1),
    Sketcher.Constraint("Tangent", 31, 2, 28, 1),
    Sketcher.Constraint("Horizontal", 0),
    Sketcher.Constraint("Horizontal", 2),
    Sketcher.Constraint("Horizontal", 4),
    Sketcher.Constraint("Horizontal", 6),
    Sketcher.Constraint("Horizontal", 8),
    Sketcher.Constraint("Horizontal", 10),
    Sketcher.Constraint("Horizontal", 12),
    Sketcher.Constraint("Horizontal", 14),
    Sketcher.Constraint("Horizontal", 16),
    Sketcher.Constraint("Horizontal", 18),
    Sketcher.Constraint("Horizontal", 20),
    Sketcher.Constraint("Horizontal", 22),
    Sketcher.Constraint("Horizontal", 24),
    Sketcher.Constraint("Horizontal", 26),
    Sketcher.Constraint("Horizontal", 28),
    Sketcher.Constraint("Horizontal", 30),
    Sketcher.Constraint("Equal", 3, 5),
    Sketcher.Constraint("Equal", 7, 9),
    Sketcher.Constraint("Equal", 11, 13),
    Sketcher.Constraint("Equal", 15, 17),
    Sketcher.Constraint("Equal", 19, 21),
    Sketcher.Constraint("Equal", 23, 25),
    Sketcher.Constraint("Equal", 27, 29),
    Sketcher.Constraint("Symmetric", 3, 3, 17, 3, -1),
    Sketcher.Constraint("Symmetric", 5, 3, 21, 3, -1),
    Sketcher.Constraint("Symmetric", 9, 3, 25, 3, -1),
    Sketcher.Constraint("Symmetric", 13, 3, 29, 3, -1),
    Sketcher.Constraint("Horizontal", 3, 3, 5, 3),
    Sketcher.Constraint("Horizontal", 7, 3, 9, 3),
    Sketcher.Constraint("Horizontal", 11, 3, 13, 3),
    Sketcher.Constraint("Vertical", 1, 3, 19, 3),
    Sketcher.Constraint("Vertical", 7, 3, 23, 3),
    Sketcher.Constraint("Vertical", 11, 3, 27, 3),
    Sketcher.Constraint("Vertical", 15, 3, 31, 3),
    Sketcher.Constraint("Equal", 2, 4),
    Sketcher.Constraint("Equal", 6, 8),
    Sketcher.Constraint("Equal", 10, 12),
    Sketcher.Constraint("Radius", 1, 1.5),
    Sketcher.Constraint("DistanceX", 0, 2, 0, 1, 5.0),
    Sketcher.Constraint("DistanceY", -1, 1, 0, 2, 19.0),
    Sketcher.Constraint("DistanceX", 5, 3, 1, 3, 15.0),
    Sketcher.Constraint("DistanceX", 9, 3, 7, 3, 15.0),
    Sketcher.Constraint("DistanceX", 13, 3, 11, 3, 15.0),
    Sketcher.Constraint("DistanceX", -1, 1, 1, 3, 36.534368),
])
sketch11.setExpression("Constraints[69]", "Params.sketch11_radius")
sketch11.setExpression("Constraints[70]", "Params.sketch11_width")
pocket9 = doc.addObject("PartDesign::Pocket", "Pocket008")
body.addObject(pocket9)
pocket9.Profile = sketch11
pocket9.setExpression("Length", "Params.pocket9_length")

# Sketch on XZ plane
sketch12 = doc.addObject("Sketcher::SketchObject", "Sketch011")
body.addObject(sketch12)
sketch12.AttachmentSupport = (doc.XZ_Plane, [""])
sketch12.MapMode = "FlatFace"
add_polygon(sketch12, [(-15, 8), (-15, -8), (5, -8), (5, 8)])  # lines 0-3
sketch12.addConstraint([
    Sketcher.Constraint("Vertical", 0),
    Sketcher.Constraint("Horizontal", 1),
    Sketcher.Constraint("Vertical", 2),
    Sketcher.Constraint("Horizontal", 3),
    Sketcher.Constraint("DistanceX", 1, 1, 1, 2, 20.0),
    Sketcher.Constraint("DistanceY", 0, 2, 0, 1, 16.0),
    Sketcher.Constraint("DistanceX", 0, 2, -1, 1, 15.0),
    Sketcher.Constraint("DistanceY", 0, 2, -1, 1, 8.0),
])
sketch12.setExpression("Constraints[8]", "Params.sketch12_width")
sketch12.setExpression("Constraints[9]", "Params.sketch12_height")
pocket10 = doc.addObject("PartDesign::Pocket", "Pocket009")
body.addObject(pocket10)
pocket10.Profile = sketch12
pocket10.setExpression("Length", "Params.pocket10_length")

# Sketch on XZ plane
sketch13 = doc.addObject("Sketcher::SketchObject", "Sketch012")
body.addObject(sketch13)
sketch13.AttachmentSupport = (doc.XZ_Plane, [""])
sketch13.MapMode = "FlatFace"
sketch13.AttachmentOffset = App.Placement(App.Vector(0, 0, -3), App.Rotation())
sketch13.addGeometry([
    Part.Circle(App.Vector(-67.7, -12.7, 0), App.Vector(0, 0, 1), 1.5),
    Part.Circle(App.Vector(-42.3, 12.7, 0), App.Vector(0, 0, 1), 1.5),
], False)
sketch13.addConstraint([
    Sketcher.Constraint("Equal", 0, 1),
    Sketcher.Constraint("Diameter", 0, 3.0),
    Sketcher.Constraint("DistanceX", 0, 3, -1, 1, 67.727922),
    Sketcher.Constraint("DistanceY", 0, 3, -1, 1, 12.727922),
    Sketcher.Constraint("DistanceX", 1, 3, -1, 1, 42.272078),
    Sketcher.Constraint("DistanceY", -1, 1, 1, 3, 12.727922),
])
sketch13.setExpression("Constraints[1]", "Params.sketch13_diameter")
pocket11 = doc.addObject("PartDesign::Pocket", "Pocket010")
body.addObject(pocket11)
pocket11.Profile = sketch13
pocket11.setExpression("Length", "Params.pocket11_length")
pocket11.Reversed = True

# Sketch on XZ plane
sketch14 = doc.addObject("Sketcher::SketchObject", "Sketch013")
body.addObject(sketch14)
sketch14.AttachmentSupport = (doc.XZ_Plane, [""])
sketch14.MapMode = "FlatFace"
sketch14.addGeometry([
    Part.Circle(App.Vector(95, 0, 0), App.Vector(0, 0, 1), 1.5),  # 0
    Part.Circle(App.Vector(79.9, -51.4, 0), App.Vector(0, 0, 1), 1.5),  # 1
    Part.Circle(App.Vector(39.5, -86.4, 0), App.Vector(0, 0, 1), 1.5),  # 2
    Part.Circle(App.Vector(-13.5, -94, 0), App.Vector(0, 0, 1), 1.5),  # 3
    Part.Circle(App.Vector(-62.2, -71.8, 0), App.Vector(0, 0, 1), 1.5),  # 4
    Part.Circle(App.Vector(-91.2, -26.8, 0), App.Vector(0, 0, 1), 1.5),  # 5
    Part.Circle(App.Vector(-91.2, 26.8, 0), App.Vector(0, 0, 1), 1.5),  # 6
    Part.Circle(App.Vector(-62.2, 71.8, 0), App.Vector(0, 0, 1), 1.5),  # 7
    Part.Circle(App.Vector(-13.5, 94, 0), App.Vector(0, 0, 1), 1.5),  # 8
    Part.Circle(App.Vector(39.5, 86.4, 0), App.Vector(0, 0, 1), 1.5),  # 9
    Part.Circle(App.Vector(79.9, 51.4, 0), App.Vector(0, 0, 1), 1.5),  # 10
], False)
sketch14.addConstraint([
    Sketcher.Constraint("Equal", 0, 1),
    Sketcher.Constraint("Equal", 1, 2),
    Sketcher.Constraint("Equal", 2, 3),
    Sketcher.Constraint("Equal", 3, 4),
    Sketcher.Constraint("Equal", 4, 5),
    Sketcher.Constraint("Equal", 5, 6),
    Sketcher.Constraint("Equal", 6, 7),
    Sketcher.Constraint("Equal", 7, 8),
    Sketcher.Constraint("Equal", 8, 9),
    Sketcher.Constraint("Equal", 9, 10),
    Sketcher.Constraint("Symmetric", 5, 3, 6, 3, -1),
    Sketcher.Constraint("Symmetric", 4, 3, 7, 3, -1),
    Sketcher.Constraint("Symmetric", 3, 3, 8, 3, -1),
    Sketcher.Constraint("Symmetric", 2, 3, 9, 3, -1),
    Sketcher.Constraint("Symmetric", 1, 3, 10, 3, -1),
    Sketcher.Constraint("PointOnObject", 0, 3, -1),
    Sketcher.Constraint("Diameter", 0, 3.0),
    Sketcher.Constraint("DistanceX", -1, 1, 0, 3, 95.0),
    Sketcher.Constraint("DistanceY", 2, 3, -1, 1, 86.41504),
    Sketcher.Constraint("DistanceX", 3, 3, -1, 1, 13.51991),
    Sketcher.Constraint("DistanceX", 4, 3, -1, 1, 62.21177),
    Sketcher.Constraint("DistanceY", 4, 3, -1, 1, 71.79621),
    Sketcher.Constraint("DistanceX", 2, 3, 1, 3, 40.454659),
    Sketcher.Constraint("DistanceY", 2, 3, 1, 3, 35.054162),
    Sketcher.Constraint("DistanceY", 3, 3, 1, 3, 42.672159),
    Sketcher.Constraint("DistanceX", 5, 3, 2, 3, 130.616259),
    Sketcher.Constraint("DistanceY", 3, 3, 6, 3, 120.79763),
    Sketcher.Constraint("DistanceX", -1, 1, 1, 3, 79.919086),
])
sketch14.setExpression("Constraints[16]", "Params.sketch14_diameter")
pocket12 = doc.addObject("PartDesign::Pocket", "Pocket011")
body.addObject(pocket12)
pocket12.Profile = sketch14
pocket12.setExpression("Length", "Params.pocket12_length")

# Sketch on XZ plane
sketch15 = doc.addObject("Sketcher::SketchObject", "Sketch014")
body.addObject(sketch15)
sketch15.AttachmentSupport = (doc.XZ_Plane, [""])
sketch15.MapMode = "FlatFace"
sketch15.addGeometry([
    Part.LineSegment(App.Vector(50.6, -16, 0), App.Vector(50.6, -19, 0)),  # 0
    Part.ArcOfCircle(Part.Circle(App.Vector(52.1, -19, 0), App.Vector(0, 0, 1), 1.5), math.radians(180), math.radians(360)),  # 1
    Part.LineSegment(App.Vector(53.6, -19, 0), App.Vector(53.6, -16, 0)),  # 2
    Part.ArcOfCircle(Part.Circle(App.Vector(52.1, -16, 0), App.Vector(0, 0, 1), 1.5), math.radians(0), math.radians(180)),  # 3
    Part.LineSegment(App.Vector(55.6, -16, 0), App.Vector(55.6, -19, 0)),  # 4
    Part.ArcOfCircle(Part.Circle(App.Vector(57.1, -19, 0), App.Vector(0, 0, 1), 1.5), math.radians(180), math.radians(360)),  # 5
    Part.LineSegment(App.Vector(58.6, -19, 0), App.Vector(58.6, -16, 0)),  # 6
    Part.ArcOfCircle(Part.Circle(App.Vector(57.1, -16, 0), App.Vector(0, 0, 1), 1.5), math.radians(0), math.radians(180)),  # 7
    Part.LineSegment(App.Vector(55.6, 19, 0), App.Vector(55.6, 16, 0)),  # 8
    Part.ArcOfCircle(Part.Circle(App.Vector(57.1, 16, 0), App.Vector(0, 0, 1), 1.5), math.radians(180), math.radians(360)),  # 9
    Part.LineSegment(App.Vector(58.6, 16, 0), App.Vector(58.6, 19, 0)),  # 10
    Part.ArcOfCircle(Part.Circle(App.Vector(57.1, 19, 0), App.Vector(0, 0, 1), 1.5), math.radians(0), math.radians(180)),  # 11
    Part.LineSegment(App.Vector(50.6, 19, 0), App.Vector(50.6, 16, 0)),  # 12
    Part.ArcOfCircle(Part.Circle(App.Vector(52.1, 16, 0), App.Vector(0, 0, 1), 1.5), math.radians(180), math.radians(360)),  # 13
    Part.LineSegment(App.Vector(53.6, 16, 0), App.Vector(53.6, 19, 0)),  # 14
    Part.ArcOfCircle(Part.Circle(App.Vector(52.1, 19, 0), App.Vector(0, 0, 1), 1.5), math.radians(0), math.radians(180)),  # 15
], False)
sketch15.addConstraint([
    Sketcher.Constraint("Tangent", 0, 2, 1, 1),
    Sketcher.Constraint("Tangent", 1, 2, 2, 1),
    Sketcher.Constraint("Tangent", 2, 2, 3, 1),
    Sketcher.Constraint("Tangent", 3, 2, 0, 1),
    Sketcher.Constraint("Tangent", 4, 2, 5, 1),
    Sketcher.Constraint("Tangent", 5, 2, 6, 1),
    Sketcher.Constraint("Tangent", 6, 2, 7, 1),
    Sketcher.Constraint("Tangent", 7, 2, 4, 1),
    Sketcher.Constraint("Tangent", 8, 2, 9, 1),
    Sketcher.Constraint("Tangent", 9, 2, 10, 1),
    Sketcher.Constraint("Tangent", 10, 2, 11, 1),
    Sketcher.Constraint("Tangent", 11, 2, 8, 1),
    Sketcher.Constraint("Tangent", 12, 2, 13, 1),
    Sketcher.Constraint("Tangent", 13, 2, 14, 1),
    Sketcher.Constraint("Tangent", 14, 2, 15, 1),
    Sketcher.Constraint("Tangent", 15, 2, 12, 1),
    Sketcher.Constraint("Vertical", 0),
    Sketcher.Constraint("Vertical", 2),
    Sketcher.Constraint("Vertical", 4),
    Sketcher.Constraint("Vertical", 6),
    Sketcher.Constraint("Vertical", 8),
    Sketcher.Constraint("Vertical", 10),
    Sketcher.Constraint("Vertical", 12),
    Sketcher.Constraint("Vertical", 14),
    Sketcher.Constraint("Equal", 3, 5),
    Sketcher.Constraint("Equal", 7, 9),
    Sketcher.Constraint("Equal", 11, 13),
    Sketcher.Constraint("Symmetric", 7, 3, 9, 3, -1),
    Sketcher.Constraint("Symmetric", 3, 3, 13, 3, -1),
    Sketcher.Constraint("Horizontal", 1, 3, 5, 3),
    Sketcher.Constraint("Horizontal", 3, 3, 7, 3),
    Sketcher.Constraint("Horizontal", 11, 3, 15, 3),
    Sketcher.Constraint("Equal", 6, 8),
    Sketcher.Constraint("Radius", 1, 1.5),
    Sketcher.Constraint("DistanceY", 0, 2, 0, 1, 3.0),
    Sketcher.Constraint("DistanceY", 1, 3, -1, 1, 19.0),
    Sketcher.Constraint("DistanceX", 1, 3, 5, 3, 5.0),
    Sketcher.Constraint("DistanceX", -1, 1, 1, 3, 52.142037),
])
sketch15.setExpression("Constraints[33]", "Params.sketch15_radius")
sketch15.setExpression("Constraints[34]", "Params.sketch15_height")
pocket13 = doc.addObject("PartDesign::Pocket", "Pocket012")
body.addObject(pocket13)
pocket13.Profile = sketch15
pocket13.setExpression("Length", "Params.pocket13_length")
doc.recompute()

fillet = doc.addObject("PartDesign::Fillet", "Fillet")
body.addObject(fillet)
fillet.Base = (pocket13, edges_at(pocket13, [
    (21.734, 1.5, 83.5),
    (-50.266, 1.5, 83.5),
    (-50.266, 1.5, 53.5),
    (-50.266, 1.5, -53.5),
    (-50.266, 1.5, -83.5),
    (21.734, 1.5, -83.5),
]))
fillet.setExpression("Radius", "Params.fillet_radius")

# Sketch on XZ plane
sketch16 = doc.addObject("Sketcher::SketchObject", "Sketch015")
body.addObject(sketch16)
sketch16.AttachmentSupport = (doc.XZ_Plane, [""])
sketch16.MapMode = "FlatFace"
sketch16.AttachmentOffset = App.Placement(App.Vector(0, 0, -3), App.Rotation())
sketch16.addGeometry([
    Part.Circle(App.Vector(91.1, -14.5, 0), App.Vector(0, 0, 1), 2),
    Part.Circle(App.Vector(91.1, 14.5, 0), App.Vector(0, 0, 1), 2),
    Part.Circle(App.Vector(68.1, 14.5, 0), App.Vector(0, 0, 1), 2),
], False)
sketch16.addConstraint([
    Sketcher.Constraint("Equal", 0, 1),
    Sketcher.Constraint("Equal", 1, 2),
    Sketcher.Constraint("Symmetric", 0, 3, 1, 3, -1),
    Sketcher.Constraint("Horizontal", 1, 3, 2, 3),
    Sketcher.Constraint("Diameter", 0, 4.0),
    Sketcher.Constraint("DistanceY", 0, 3, 1, 3, 29.0),
    Sketcher.Constraint("DistanceX", 2, 3, 1, 3, 23.0),
    Sketcher.Constraint("DistanceX", -1, 1, 0, 3, 91.099215),
])
sketch16.setExpression("Constraints[4]", "Params.sketch16_diameter")
pocket14 = doc.addObject("PartDesign::Pocket", "Pocket013")
body.addObject(pocket14)
pocket14.Profile = sketch16
pocket14.setExpression("Length", "Params.pocket14_length")
pocket14.Reversed = True

doc.recompute()
